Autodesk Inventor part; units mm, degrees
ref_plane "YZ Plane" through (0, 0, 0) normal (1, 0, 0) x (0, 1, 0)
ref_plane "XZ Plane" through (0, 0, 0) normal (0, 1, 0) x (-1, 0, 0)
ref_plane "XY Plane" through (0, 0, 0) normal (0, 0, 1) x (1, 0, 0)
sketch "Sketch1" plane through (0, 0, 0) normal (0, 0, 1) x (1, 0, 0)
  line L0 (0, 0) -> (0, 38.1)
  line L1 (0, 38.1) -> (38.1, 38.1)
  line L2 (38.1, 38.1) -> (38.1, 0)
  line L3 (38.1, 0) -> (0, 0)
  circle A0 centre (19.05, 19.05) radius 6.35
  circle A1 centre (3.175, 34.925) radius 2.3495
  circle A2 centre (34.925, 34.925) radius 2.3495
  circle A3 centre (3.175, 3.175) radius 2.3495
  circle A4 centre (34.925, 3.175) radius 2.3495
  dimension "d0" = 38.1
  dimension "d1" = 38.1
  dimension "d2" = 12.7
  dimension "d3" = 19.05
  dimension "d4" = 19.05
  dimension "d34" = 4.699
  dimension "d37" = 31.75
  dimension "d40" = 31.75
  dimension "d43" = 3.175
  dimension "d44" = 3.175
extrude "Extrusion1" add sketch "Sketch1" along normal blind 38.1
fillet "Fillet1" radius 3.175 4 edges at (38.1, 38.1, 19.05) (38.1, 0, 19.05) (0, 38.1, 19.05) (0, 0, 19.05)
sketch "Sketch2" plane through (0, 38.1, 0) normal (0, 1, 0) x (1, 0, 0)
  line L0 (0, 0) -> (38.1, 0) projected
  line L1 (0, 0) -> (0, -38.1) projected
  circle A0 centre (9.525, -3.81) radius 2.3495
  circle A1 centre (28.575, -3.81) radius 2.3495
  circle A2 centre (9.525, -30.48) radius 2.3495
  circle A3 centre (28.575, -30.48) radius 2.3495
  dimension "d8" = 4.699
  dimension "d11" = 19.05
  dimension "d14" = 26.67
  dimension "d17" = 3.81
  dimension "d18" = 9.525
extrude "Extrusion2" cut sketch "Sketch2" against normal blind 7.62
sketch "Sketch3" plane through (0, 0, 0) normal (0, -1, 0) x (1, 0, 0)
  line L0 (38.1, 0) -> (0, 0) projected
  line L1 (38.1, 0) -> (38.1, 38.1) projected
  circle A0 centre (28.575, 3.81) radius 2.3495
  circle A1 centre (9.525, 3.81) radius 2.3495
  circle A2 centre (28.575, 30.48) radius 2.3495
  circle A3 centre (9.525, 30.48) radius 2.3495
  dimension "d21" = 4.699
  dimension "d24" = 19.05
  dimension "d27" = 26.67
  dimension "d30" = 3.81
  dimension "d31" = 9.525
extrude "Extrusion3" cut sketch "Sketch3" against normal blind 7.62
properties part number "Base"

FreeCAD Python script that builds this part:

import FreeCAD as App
import Part
import Sketcher
Q = App.Units.Quantity


def edges_at(feature, points):
    """Names of the edges that pass closest to the given points."""
    edges = feature.Shape.Edges
    near = lambda p: min(range(len(edges)), key=lambda i: edges[i].distToShape(Part.Vertex(*p))[0])
    return sorted({f"Edge{near(p) + 1}" for p in points})

doc = App.newDocument("Part")
body = doc.addObject("PartDesign::Body", "Body")

sketch1 = body.newObject("Sketcher::SketchObject", "Sketch")
sketch1.AttachmentSupport = (doc.getObject("XY_Plane"), [""])
sketch1.MapMode = "FlatFace"
sketch1.addGeometry([
    Part.LineSegment(App.Vector(0, 38.1, 0), App.Vector(0, 0, 0)),
    Part.LineSegment(App.Vector(0, 0, 0), App.Vector(38.1, 0, 0)),
    Part.LineSegment(App.Vector(38.1, 0, 0), App.Vector(38.1, 38.1, 0)),
    Part.LineSegment(App.Vector(38.1, 38.1, 0), App.Vector(0, 38.1, 0)),
    Part.Circle(App.Vector(3.2, 3.2, 0), App.Vector(0, 0, 1), 2.3),
    Part.Circle(App.Vector(34.9, 3.2, 0), App.Vector(0, 0, 1), 2.3),
    Part.Circle(App.Vector(3.2, 34.9, 0), App.Vector(0, 0, 1), 2.3),
    Part.Circle(App.Vector(19.1, 19.1, 0), App.Vector(0, 0, 1), 6.3),
    Part.Circle(App.Vector(34.9, 34.9, 0), App.Vector(0, 0, 1), 2.3),
], False)
sketch1.addConstraint([
    Sketcher.Constraint("Coincident", 0, 2, 1, 1),
    Sketcher.Constraint("Coincident", 1, 2, 2, 1),
    Sketcher.Constraint("Coincident", 2, 2, 3, 1),
    Sketcher.Constraint("Coincident", 3, 2, 0, 1),
    Sketcher.Constraint("Vertical", 0),
    Sketcher.Constraint("Horizontal", 1),
    Sketcher.Constraint("Vertical", 2),
    Sketcher.Constraint("Horizontal", 3),
    Sketcher.Constraint("Coincident", 0, 2, -1, 1),
    Sketcher.Constraint("Equal", 4, 5),
    Sketcher.Constraint("Equal", 5, 6),
    Sketcher.Constraint("Equal", 6, 8),
    Sketcher.Constraint("Horizontal", 4, 3, 5, 3),
    Sketcher.Constraint("Horizontal", 6, 3, 8, 3),
    Sketcher.Constraint("Vertical", 4, 3, 6, 3),
    Sketcher.Constraint("Vertical", 5, 3, 8, 3),
    Sketcher.Constraint("Equal", 3, 0),
    Sketcher.Constraint("Diameter", 7, Q("0.5 in")),
    Sketcher.Constraint("Diameter", 4, Q("0.185 in")),
    Sketcher.Constraint("DistanceX", 1, 1, 1, 2, Q("1.5 in")),
    Sketcher.Constraint("DistanceX", -1, 1, 7, 3, Q("0.75 in")),
    Sketcher.Constraint("DistanceY", -1, 1, 7, 3, Q("0.75 in")),
    Sketcher.Constraint("DistanceX", 4, 3, 5, 3, Q("1.25 in")),
    Sketcher.Constraint("DistanceY", 4, 3, 6, 3, Q("1.25 in")),
    Sketcher.Constraint("DistanceX", -1, 1, 4, 3, Q("0.125 in")),
    Sketcher.Constraint("DistanceY", -1, 1, 4, 3, Q("0.125 in")),
])
pad1 = body.newObject("PartDesign::Pad", "Pad")
pad1.Profile = sketch1
pad1.Length = Q("1.5 in")
doc.recompute()

fillet = body.newObject("PartDesign::Fillet", "Fillet")
fillet.Base = (pad1, edges_at(pad1, [
    (38.1, 38.1, 19.05),
    (38.1, 0, 19.05),
    (0, 38.1, 19.05),
    (0, 0, 19.05),
]))
fillet.Radius = Q("0.125 in")

sketch2 = body.newObject("Sketcher::SketchObject", "Sketch001")
sketch2.AttachmentSupport = (doc.getObject("XZ_Plane"), [""])
sketch2.MapMode = "FlatFace"
sketch2.AttachmentOffset = App.Placement(App.Vector(0, 0, -1.5 * 25.4), App.Rotation())
sketch2.addGeometry([
    Part.Circle(App.Vector(9.5, 3.8, 0), App.Vector(0, 0, 1), 2.3),
    Part.Circle(App.Vector(28.6, 3.8, 0), App.Vector(0, 0, 1), 2.3),
    Part.Circle(App.Vector(9.5, 30.5, 0), App.Vector(0, 0, 1), 2.3),
    Part.Circle(App.Vector(28.6, 30.5, 0), App.Vector(0, 0, 1), 2.3),
], False)
sketch2.addConstraint([
    Sketcher.Constraint("Equal", 0, 1),
    Sketcher.Constraint("Equal", 1, 2),
    Sketcher.Constraint("Equal", 2, 3),
    Sketcher.Constraint("Horizontal", 0, 3, 1, 3),
    Sketcher.Constraint("Horizontal", 2, 3, 3, 3),
    Sketcher.Constraint("Vertical", 0, 3, 2, 3),
    Sketcher.Constraint("Vertical", 1, 3, 3, 3),
    Sketcher.Constraint("Diameter", 0, Q("0.185 in")),
    Sketcher.Constraint("DistanceY", -1, 1, 0, 3, Q("0.15 in")),
    Sketcher.Constraint("DistanceX", 0, 3, 1, 3, Q("0.75 in")),
    Sketcher.Constraint("DistanceY", 0, 3, 2, 3, Q("1.05 in")),
    Sketcher.Constraint("DistanceX", -1, 1, 0, 3, Q("0.375 in")),
])
pocket1 = body.newObject("PartDesign::Pocket", "Pocket")
pocket1.Profile = sketch2
pocket1.Length = Q("0.3 in")
pocket1.Reversed = True

sketch3 = body.newObject("Sketcher::SketchObject", "Sketch002")
sketch3.AttachmentSupport = (doc.getObject("XZ_Plane"), [""])
sketch3.MapMode = "FlatFace"
sketch3.addGeometry([
    Part.Circle(App.Vector(28.6, 3.8, 0), App.Vector(0, 0, 1), 2.3),
    Part.Circle(App.Vector(9.5, 3.8, 0), App.Vector(0, 0, 1), 2.3),
    Part.Circle(App.Vector(28.6, 30.5, 0), App.Vector(0, 0, 1), 2.3),
    Part.Circle(App.Vector(9.5, 30.5, 0), App.Vector(0, 0, 1), 2.3),
], False)
sketch3.addConstraint([
    Sketcher.Constraint("Equal", 0, 1),
    Sketcher.Constraint("Equal", 1, 2),
    Sketcher.Constraint("Equal", 2, 3),
    Sketcher.Constraint("Horizontal", 0, 3, 1, 3),
    Sketcher.Constraint("Horizontal", 2, 3, 3, 3),
    Sketcher.Constraint("Vertical", 0, 3, 2, 3),
    Sketcher.Constraint("Vertical", 1, 3, 3, 3),
    Sketcher.Constraint("Diameter", 0, Q("0.185 in")),
    Sketcher.Constraint("DistanceY", -1, 1, 0, 3, Q("0.15 in")),
    Sketcher.Constraint("DistanceX", 1, 3, 0, 3, Q("0.75 in")),
    Sketcher.Constraint("DistanceY", 0, 3, 2, 3, Q("1.05 in")),
    Sketcher.Constraint("DistanceX", -1, 1, 1, 3, Q("0.375 in")),
])
pocket2 = body.newObject("PartDesign::Pocket", "Pocket001")
pocket2.Profile = sketch3
pocket2.Length = Q("0.3 in")

doc.recompute()
